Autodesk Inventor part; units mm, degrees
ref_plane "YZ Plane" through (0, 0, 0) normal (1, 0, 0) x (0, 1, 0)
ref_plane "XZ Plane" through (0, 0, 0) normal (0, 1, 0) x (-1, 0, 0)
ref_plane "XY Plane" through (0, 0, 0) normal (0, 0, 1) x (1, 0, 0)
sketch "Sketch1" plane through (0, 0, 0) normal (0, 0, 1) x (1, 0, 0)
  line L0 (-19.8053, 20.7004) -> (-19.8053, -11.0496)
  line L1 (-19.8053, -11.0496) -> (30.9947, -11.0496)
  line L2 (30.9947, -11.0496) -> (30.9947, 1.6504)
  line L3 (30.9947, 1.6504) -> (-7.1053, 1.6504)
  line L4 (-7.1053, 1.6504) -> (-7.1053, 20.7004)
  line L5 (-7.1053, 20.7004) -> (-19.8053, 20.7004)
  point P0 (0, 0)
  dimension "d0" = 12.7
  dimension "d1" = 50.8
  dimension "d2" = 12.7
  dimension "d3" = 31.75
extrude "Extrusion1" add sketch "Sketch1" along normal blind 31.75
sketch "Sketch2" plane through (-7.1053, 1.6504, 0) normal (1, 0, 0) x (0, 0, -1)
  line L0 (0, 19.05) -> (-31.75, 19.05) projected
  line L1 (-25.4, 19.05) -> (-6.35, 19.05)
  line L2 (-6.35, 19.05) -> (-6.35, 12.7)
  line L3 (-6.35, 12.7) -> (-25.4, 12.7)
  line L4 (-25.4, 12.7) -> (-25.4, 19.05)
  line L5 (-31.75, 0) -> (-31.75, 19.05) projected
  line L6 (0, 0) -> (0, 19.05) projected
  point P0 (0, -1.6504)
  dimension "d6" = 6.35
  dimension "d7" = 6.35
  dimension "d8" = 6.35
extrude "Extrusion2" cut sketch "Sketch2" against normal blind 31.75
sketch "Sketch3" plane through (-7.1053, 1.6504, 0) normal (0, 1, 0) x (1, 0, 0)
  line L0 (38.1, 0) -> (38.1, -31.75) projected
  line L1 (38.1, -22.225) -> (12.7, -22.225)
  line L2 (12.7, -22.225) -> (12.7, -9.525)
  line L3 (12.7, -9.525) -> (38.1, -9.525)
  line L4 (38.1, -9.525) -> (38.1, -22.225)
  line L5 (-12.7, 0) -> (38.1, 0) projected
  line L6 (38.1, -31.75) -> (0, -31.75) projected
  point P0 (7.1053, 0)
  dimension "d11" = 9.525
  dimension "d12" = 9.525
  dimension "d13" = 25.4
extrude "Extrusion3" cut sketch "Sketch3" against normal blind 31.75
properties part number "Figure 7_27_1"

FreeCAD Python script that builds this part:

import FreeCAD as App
import Part
import Sketcher

V = App.Vector
Q = App.Units.Quantity


def add_polygon(sketch, points):
    """Adds a closed chain of lines whose ends are joined by coincident constraints."""
    first, n = sketch.GeometryCount, len(points)
    for a, b in zip(points, points[1:] + points[:1]):
        sketch.addGeometry(Part.LineSegment(App.Vector(*a, 0), App.Vector(*b, 0)), False)
    for i in range(n):
        sketch.addConstraint(Sketcher.Constraint("Coincident", first + i, 2, first + (i + 1) % n, 1))

doc = App.newDocument("Part")
params = doc.addObject("Spreadsheet::Sheet", "Params")
for row, (alias, value) in enumerate([
    ("sketch1_width", "2 in"),
    ("sketch1_width2", "0.5 in"),
    ("sketch1_height", "1.25 in"),
    ("pad1_length", "1.25 in"),
    ("sketch2_width", "0.25 in"),
    ("pocket1_length", "1.25 in"),
    ("sketch3_width", "1 in"),
    ("sketch3_height", "0.5 in"),
    ("pocket2_length", "1.25 in"),
], start=1):
    params.set(f"A{row}", alias)
    params.set(f"B{row}", "=" + value)
    params.setAlias(f"B{row}", alias)

body = doc.addObject("PartDesign::Body", "Body")

sketch1 = doc.addObject("Sketcher::SketchObject", "Sketch")
body.addObject(sketch1)
sketch1.AttachmentSupport = (doc.XY_Plane, [""])
sketch1.MapMode = "FlatFace"
add_polygon(sketch1, [(-7, 21), (-20, 21), (-20, -11), (31, -11), (31, 2), (-7, 2)])
sketch1.addConstraint([
    Sketcher.Constraint("Horizontal", 0),
    Sketcher.Constraint("Vertical", 1),
    Sketcher.Constraint("Horizontal", 2),
    Sketcher.Constraint("Vertical", 3),
    Sketcher.Constraint("Horizontal", 4),
    Sketcher.Constraint("Vertical", 5),
    Sketcher.Constraint("Equal", 0, 3),
    Sketcher.Constraint("DistanceX", 2, 1, 2, 2, Q("2 in")),
    Sketcher.Constraint("DistanceX", 0, 2, 0, 1, Q("0.5 in")),
    Sketcher.Constraint("DistanceY", 1, 2, 1, 1, Q("1.25 in")),
    Sketcher.Constraint("DistanceX", 0, 2, -1, 1, 19.8053),
    Sketcher.Constraint("DistanceY", -1, 1, 0, 2, 20.7004),
])
sketch1.setExpression("Constraints[13]", "Params.sketch1_width")
sketch1.setExpression("Constraints[14]", "Params.sketch1_width2")
sketch1.setExpression("Constraints[15]", "Params.sketch1_height")
pad1 = doc.addObject("PartDesign::Pad", "Pad")
body.addObject(pad1)
pad1.Profile = sketch1
pad1.setExpression("Length", "Params.pad1_length")

sketch2 = doc.addObject("Sketcher::SketchObject", "Sketch001")
body.addObject(sketch2)
sketch2.AttachmentSupport = (doc.YZ_Plane, [""])
sketch2.MapMode = "FlatFace"
sketch2.AttachmentOffset = App.Placement(V(0, 0, -7.1053), App.Rotation())
add_polygon(sketch2, [(14, 6), (21, 6), (21, 25), (14, 25)])
sketch2.addConstraint([
    Sketcher.Constraint("Horizontal", 0),
    Sketcher.Constraint("Vertical", 1),
    Sketcher.Constraint("Horizontal", 2),
    Sketcher.Constraint("Vertical", 3),
    Sketcher.Constraint("DistanceX", 0, 1, 0, 2, Q("0.25 in")),
    Sketcher.Constraint("DistanceY", -1, 1, 0, 2, Q("0.25 in")),
    Sketcher.Constraint("DistanceY", -1, 1, 1, 2, Q("1 in")),
    Sketcher.Constraint("DistanceX", -1, 1, 0, 2, 20.7004),
])
sketch2.setExpression("Constraints[8]", "Params.sketch2_width")
pocket1 = doc.addObject("PartDesign::Pocket", "Pocket")
body.addObject(pocket1)
pocket1.Profile = sketch2
pocket1.setExpression("Length", "Params.pocket1_length")

sketch3 = doc.addObject("Sketcher::SketchObject", "Sketch002")
body.addObject(sketch3)
sketch3.AttachmentSupport = (doc.XZ_Plane, [""])
sketch3.MapMode = "FlatFace"
sketch3.AttachmentOffset = App.Placement(V(0, 0, -1.6504), App.Rotation())
add_polygon(sketch3, [(31, 22), (31, 10), (6, 10), (6, 22)])
sketch3.addConstraint([
    Sketcher.Constraint("Vertical", 0),
    Sketcher.Constraint("Horizontal", 1),
    Sketcher.Constraint("Vertical", 2),
    Sketcher.Constraint("Horizontal", 3),
    Sketcher.Constraint("DistanceX", 1, 2, 1, 1, Q("1 in")),
    Sketcher.Constraint("DistanceY", 0, 2, 0, 1, Q("0.5 in")),
    Sketcher.Constraint("DistanceY", -1, 1, 0, 2, Q("0.375 in")),
    Sketcher.Constraint("DistanceX", -1, 1, 0, 2, 30.9947),
])
sketch3.setExpression("Constraints[8]", "Params.sketch3_width")
sketch3.setExpression("Constraints[9]", "Params.sketch3_height")
pocket2 = doc.addObject("PartDesign::Pocket", "Pocket001")
body.addObject(pocket2)
pocket2.Profile = sketch3
pocket2.setExpression("Length", "Params.pocket2_length")
pocket2.Reversed = True

doc.recompute()
